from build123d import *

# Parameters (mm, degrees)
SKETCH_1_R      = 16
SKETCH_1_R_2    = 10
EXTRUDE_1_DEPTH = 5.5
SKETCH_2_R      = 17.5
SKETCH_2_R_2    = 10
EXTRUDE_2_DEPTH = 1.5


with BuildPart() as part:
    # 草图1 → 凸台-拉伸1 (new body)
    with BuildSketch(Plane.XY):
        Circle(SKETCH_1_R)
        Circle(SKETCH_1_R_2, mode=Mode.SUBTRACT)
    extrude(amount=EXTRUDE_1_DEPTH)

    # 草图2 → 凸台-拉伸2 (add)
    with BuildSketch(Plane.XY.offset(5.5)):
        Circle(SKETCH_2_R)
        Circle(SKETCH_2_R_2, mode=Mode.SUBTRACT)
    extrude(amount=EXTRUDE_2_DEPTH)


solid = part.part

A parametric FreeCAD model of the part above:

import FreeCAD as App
import Part
import Sketcher
Q = App.Units.Quantity

doc = App.newDocument("Part")
params = doc.addObject("Spreadsheet::Sheet", "Params")
for row, (alias, value) in enumerate([
    ("sketch1_diameter", "32 mm"),
    ("sketch1_diameter2", "20 mm"),
    ("pad1_length", "5.5 mm"),
    ("sketch2_diameter", "35 mm"),
    ("sketch2_diameter2", "20 mm"),
    ("pad2_length", "1.5 mm"),
], start=1):
    params.set(f"A{row}", alias)
    params.set(f"B{row}", "=" + value)
    params.setAlias(f"B{row}", alias)

body = doc.addObject("PartDesign::Body", "Body")

# Sketch on XY plane
sketch1 = body.newObject("Sketcher::SketchObject", "Sketch")
sketch1.AttachmentSupport = (doc.getObject("XY_Plane"), [""])
sketch1.MapMode = "FlatFace"
sketch1.addGeometry(Part.Circle(App.Vector(0, 0, 0), App.Vector(0, 0, 1), 16), False)
sketch1.addGeometry(Part.Circle(App.Vector(0, 0, 0), App.Vector(0, 0, 1), 10), False)
sketch1.addConstraint(Sketcher.Constraint("Coincident", 0, 3, -1, 1))
sketch1.addConstraint(Sketcher.Constraint("Coincident", 1, 3, -1, 1))
sketch1.addConstraint(Sketcher.Constraint("Diameter", 0, Q("32 mm")))
sketch1.addConstraint(Sketcher.Constraint("Diameter", 1, Q("20 mm")))
sketch1.setExpression("Constraints[2]", "Params.sketch1_diameter")
sketch1.setExpression("Constraints[3]", "Params.sketch1_diameter2")
pad1 = body.newObject("PartDesign::Pad", "Pad")
pad1.Profile = sketch1
pad1.setExpression("Length", "Params.pad1_length")

# Sketch on XY plane
sketch2 = body.newObject("Sketcher::SketchObject", "Sketch001")
sketch2.AttachmentSupport = (doc.getObject("XY_Plane"), [""])
sketch2.MapMode = "FlatFace"
sketch2.AttachmentOffset = App.Placement(App.Vector(0, 0, 5.5), App.Rotation())
sketch2.addGeometry(Part.Circle(App.Vector(0, 0, 0), App.Vector(0, 0, 1), 18), False)
sketch2.addGeometry(Part.Circle(App.Vector(0, 0, 0), App.Vector(0, 0, 1), 10), False)
sketch2.addConstraint(Sketcher.Constraint("Coincident", 0, 3, -1, 1))
sketch2.addConstraint(Sketcher.Constraint("Coincident", 1, 3, -1, 1))
sketch2.addConstraint(Sketcher.Constraint("Diameter", 0, Q("35 mm")))
sketch2.addConstraint(Sketcher.Constraint("Diameter", 1, Q("20 mm")))
sketch2.setExpression("Constraints[2]", "Params.sketch2_diameter")
sketch2.setExpression("Constraints[3]", "Params.sketch2_diameter2")
pad2 = body.newObject("PartDesign::Pad", "Pad001")
pad2.Profile = sketch2
pad2.setExpression("Length", "Params.pad2_length")

doc.recompute()
